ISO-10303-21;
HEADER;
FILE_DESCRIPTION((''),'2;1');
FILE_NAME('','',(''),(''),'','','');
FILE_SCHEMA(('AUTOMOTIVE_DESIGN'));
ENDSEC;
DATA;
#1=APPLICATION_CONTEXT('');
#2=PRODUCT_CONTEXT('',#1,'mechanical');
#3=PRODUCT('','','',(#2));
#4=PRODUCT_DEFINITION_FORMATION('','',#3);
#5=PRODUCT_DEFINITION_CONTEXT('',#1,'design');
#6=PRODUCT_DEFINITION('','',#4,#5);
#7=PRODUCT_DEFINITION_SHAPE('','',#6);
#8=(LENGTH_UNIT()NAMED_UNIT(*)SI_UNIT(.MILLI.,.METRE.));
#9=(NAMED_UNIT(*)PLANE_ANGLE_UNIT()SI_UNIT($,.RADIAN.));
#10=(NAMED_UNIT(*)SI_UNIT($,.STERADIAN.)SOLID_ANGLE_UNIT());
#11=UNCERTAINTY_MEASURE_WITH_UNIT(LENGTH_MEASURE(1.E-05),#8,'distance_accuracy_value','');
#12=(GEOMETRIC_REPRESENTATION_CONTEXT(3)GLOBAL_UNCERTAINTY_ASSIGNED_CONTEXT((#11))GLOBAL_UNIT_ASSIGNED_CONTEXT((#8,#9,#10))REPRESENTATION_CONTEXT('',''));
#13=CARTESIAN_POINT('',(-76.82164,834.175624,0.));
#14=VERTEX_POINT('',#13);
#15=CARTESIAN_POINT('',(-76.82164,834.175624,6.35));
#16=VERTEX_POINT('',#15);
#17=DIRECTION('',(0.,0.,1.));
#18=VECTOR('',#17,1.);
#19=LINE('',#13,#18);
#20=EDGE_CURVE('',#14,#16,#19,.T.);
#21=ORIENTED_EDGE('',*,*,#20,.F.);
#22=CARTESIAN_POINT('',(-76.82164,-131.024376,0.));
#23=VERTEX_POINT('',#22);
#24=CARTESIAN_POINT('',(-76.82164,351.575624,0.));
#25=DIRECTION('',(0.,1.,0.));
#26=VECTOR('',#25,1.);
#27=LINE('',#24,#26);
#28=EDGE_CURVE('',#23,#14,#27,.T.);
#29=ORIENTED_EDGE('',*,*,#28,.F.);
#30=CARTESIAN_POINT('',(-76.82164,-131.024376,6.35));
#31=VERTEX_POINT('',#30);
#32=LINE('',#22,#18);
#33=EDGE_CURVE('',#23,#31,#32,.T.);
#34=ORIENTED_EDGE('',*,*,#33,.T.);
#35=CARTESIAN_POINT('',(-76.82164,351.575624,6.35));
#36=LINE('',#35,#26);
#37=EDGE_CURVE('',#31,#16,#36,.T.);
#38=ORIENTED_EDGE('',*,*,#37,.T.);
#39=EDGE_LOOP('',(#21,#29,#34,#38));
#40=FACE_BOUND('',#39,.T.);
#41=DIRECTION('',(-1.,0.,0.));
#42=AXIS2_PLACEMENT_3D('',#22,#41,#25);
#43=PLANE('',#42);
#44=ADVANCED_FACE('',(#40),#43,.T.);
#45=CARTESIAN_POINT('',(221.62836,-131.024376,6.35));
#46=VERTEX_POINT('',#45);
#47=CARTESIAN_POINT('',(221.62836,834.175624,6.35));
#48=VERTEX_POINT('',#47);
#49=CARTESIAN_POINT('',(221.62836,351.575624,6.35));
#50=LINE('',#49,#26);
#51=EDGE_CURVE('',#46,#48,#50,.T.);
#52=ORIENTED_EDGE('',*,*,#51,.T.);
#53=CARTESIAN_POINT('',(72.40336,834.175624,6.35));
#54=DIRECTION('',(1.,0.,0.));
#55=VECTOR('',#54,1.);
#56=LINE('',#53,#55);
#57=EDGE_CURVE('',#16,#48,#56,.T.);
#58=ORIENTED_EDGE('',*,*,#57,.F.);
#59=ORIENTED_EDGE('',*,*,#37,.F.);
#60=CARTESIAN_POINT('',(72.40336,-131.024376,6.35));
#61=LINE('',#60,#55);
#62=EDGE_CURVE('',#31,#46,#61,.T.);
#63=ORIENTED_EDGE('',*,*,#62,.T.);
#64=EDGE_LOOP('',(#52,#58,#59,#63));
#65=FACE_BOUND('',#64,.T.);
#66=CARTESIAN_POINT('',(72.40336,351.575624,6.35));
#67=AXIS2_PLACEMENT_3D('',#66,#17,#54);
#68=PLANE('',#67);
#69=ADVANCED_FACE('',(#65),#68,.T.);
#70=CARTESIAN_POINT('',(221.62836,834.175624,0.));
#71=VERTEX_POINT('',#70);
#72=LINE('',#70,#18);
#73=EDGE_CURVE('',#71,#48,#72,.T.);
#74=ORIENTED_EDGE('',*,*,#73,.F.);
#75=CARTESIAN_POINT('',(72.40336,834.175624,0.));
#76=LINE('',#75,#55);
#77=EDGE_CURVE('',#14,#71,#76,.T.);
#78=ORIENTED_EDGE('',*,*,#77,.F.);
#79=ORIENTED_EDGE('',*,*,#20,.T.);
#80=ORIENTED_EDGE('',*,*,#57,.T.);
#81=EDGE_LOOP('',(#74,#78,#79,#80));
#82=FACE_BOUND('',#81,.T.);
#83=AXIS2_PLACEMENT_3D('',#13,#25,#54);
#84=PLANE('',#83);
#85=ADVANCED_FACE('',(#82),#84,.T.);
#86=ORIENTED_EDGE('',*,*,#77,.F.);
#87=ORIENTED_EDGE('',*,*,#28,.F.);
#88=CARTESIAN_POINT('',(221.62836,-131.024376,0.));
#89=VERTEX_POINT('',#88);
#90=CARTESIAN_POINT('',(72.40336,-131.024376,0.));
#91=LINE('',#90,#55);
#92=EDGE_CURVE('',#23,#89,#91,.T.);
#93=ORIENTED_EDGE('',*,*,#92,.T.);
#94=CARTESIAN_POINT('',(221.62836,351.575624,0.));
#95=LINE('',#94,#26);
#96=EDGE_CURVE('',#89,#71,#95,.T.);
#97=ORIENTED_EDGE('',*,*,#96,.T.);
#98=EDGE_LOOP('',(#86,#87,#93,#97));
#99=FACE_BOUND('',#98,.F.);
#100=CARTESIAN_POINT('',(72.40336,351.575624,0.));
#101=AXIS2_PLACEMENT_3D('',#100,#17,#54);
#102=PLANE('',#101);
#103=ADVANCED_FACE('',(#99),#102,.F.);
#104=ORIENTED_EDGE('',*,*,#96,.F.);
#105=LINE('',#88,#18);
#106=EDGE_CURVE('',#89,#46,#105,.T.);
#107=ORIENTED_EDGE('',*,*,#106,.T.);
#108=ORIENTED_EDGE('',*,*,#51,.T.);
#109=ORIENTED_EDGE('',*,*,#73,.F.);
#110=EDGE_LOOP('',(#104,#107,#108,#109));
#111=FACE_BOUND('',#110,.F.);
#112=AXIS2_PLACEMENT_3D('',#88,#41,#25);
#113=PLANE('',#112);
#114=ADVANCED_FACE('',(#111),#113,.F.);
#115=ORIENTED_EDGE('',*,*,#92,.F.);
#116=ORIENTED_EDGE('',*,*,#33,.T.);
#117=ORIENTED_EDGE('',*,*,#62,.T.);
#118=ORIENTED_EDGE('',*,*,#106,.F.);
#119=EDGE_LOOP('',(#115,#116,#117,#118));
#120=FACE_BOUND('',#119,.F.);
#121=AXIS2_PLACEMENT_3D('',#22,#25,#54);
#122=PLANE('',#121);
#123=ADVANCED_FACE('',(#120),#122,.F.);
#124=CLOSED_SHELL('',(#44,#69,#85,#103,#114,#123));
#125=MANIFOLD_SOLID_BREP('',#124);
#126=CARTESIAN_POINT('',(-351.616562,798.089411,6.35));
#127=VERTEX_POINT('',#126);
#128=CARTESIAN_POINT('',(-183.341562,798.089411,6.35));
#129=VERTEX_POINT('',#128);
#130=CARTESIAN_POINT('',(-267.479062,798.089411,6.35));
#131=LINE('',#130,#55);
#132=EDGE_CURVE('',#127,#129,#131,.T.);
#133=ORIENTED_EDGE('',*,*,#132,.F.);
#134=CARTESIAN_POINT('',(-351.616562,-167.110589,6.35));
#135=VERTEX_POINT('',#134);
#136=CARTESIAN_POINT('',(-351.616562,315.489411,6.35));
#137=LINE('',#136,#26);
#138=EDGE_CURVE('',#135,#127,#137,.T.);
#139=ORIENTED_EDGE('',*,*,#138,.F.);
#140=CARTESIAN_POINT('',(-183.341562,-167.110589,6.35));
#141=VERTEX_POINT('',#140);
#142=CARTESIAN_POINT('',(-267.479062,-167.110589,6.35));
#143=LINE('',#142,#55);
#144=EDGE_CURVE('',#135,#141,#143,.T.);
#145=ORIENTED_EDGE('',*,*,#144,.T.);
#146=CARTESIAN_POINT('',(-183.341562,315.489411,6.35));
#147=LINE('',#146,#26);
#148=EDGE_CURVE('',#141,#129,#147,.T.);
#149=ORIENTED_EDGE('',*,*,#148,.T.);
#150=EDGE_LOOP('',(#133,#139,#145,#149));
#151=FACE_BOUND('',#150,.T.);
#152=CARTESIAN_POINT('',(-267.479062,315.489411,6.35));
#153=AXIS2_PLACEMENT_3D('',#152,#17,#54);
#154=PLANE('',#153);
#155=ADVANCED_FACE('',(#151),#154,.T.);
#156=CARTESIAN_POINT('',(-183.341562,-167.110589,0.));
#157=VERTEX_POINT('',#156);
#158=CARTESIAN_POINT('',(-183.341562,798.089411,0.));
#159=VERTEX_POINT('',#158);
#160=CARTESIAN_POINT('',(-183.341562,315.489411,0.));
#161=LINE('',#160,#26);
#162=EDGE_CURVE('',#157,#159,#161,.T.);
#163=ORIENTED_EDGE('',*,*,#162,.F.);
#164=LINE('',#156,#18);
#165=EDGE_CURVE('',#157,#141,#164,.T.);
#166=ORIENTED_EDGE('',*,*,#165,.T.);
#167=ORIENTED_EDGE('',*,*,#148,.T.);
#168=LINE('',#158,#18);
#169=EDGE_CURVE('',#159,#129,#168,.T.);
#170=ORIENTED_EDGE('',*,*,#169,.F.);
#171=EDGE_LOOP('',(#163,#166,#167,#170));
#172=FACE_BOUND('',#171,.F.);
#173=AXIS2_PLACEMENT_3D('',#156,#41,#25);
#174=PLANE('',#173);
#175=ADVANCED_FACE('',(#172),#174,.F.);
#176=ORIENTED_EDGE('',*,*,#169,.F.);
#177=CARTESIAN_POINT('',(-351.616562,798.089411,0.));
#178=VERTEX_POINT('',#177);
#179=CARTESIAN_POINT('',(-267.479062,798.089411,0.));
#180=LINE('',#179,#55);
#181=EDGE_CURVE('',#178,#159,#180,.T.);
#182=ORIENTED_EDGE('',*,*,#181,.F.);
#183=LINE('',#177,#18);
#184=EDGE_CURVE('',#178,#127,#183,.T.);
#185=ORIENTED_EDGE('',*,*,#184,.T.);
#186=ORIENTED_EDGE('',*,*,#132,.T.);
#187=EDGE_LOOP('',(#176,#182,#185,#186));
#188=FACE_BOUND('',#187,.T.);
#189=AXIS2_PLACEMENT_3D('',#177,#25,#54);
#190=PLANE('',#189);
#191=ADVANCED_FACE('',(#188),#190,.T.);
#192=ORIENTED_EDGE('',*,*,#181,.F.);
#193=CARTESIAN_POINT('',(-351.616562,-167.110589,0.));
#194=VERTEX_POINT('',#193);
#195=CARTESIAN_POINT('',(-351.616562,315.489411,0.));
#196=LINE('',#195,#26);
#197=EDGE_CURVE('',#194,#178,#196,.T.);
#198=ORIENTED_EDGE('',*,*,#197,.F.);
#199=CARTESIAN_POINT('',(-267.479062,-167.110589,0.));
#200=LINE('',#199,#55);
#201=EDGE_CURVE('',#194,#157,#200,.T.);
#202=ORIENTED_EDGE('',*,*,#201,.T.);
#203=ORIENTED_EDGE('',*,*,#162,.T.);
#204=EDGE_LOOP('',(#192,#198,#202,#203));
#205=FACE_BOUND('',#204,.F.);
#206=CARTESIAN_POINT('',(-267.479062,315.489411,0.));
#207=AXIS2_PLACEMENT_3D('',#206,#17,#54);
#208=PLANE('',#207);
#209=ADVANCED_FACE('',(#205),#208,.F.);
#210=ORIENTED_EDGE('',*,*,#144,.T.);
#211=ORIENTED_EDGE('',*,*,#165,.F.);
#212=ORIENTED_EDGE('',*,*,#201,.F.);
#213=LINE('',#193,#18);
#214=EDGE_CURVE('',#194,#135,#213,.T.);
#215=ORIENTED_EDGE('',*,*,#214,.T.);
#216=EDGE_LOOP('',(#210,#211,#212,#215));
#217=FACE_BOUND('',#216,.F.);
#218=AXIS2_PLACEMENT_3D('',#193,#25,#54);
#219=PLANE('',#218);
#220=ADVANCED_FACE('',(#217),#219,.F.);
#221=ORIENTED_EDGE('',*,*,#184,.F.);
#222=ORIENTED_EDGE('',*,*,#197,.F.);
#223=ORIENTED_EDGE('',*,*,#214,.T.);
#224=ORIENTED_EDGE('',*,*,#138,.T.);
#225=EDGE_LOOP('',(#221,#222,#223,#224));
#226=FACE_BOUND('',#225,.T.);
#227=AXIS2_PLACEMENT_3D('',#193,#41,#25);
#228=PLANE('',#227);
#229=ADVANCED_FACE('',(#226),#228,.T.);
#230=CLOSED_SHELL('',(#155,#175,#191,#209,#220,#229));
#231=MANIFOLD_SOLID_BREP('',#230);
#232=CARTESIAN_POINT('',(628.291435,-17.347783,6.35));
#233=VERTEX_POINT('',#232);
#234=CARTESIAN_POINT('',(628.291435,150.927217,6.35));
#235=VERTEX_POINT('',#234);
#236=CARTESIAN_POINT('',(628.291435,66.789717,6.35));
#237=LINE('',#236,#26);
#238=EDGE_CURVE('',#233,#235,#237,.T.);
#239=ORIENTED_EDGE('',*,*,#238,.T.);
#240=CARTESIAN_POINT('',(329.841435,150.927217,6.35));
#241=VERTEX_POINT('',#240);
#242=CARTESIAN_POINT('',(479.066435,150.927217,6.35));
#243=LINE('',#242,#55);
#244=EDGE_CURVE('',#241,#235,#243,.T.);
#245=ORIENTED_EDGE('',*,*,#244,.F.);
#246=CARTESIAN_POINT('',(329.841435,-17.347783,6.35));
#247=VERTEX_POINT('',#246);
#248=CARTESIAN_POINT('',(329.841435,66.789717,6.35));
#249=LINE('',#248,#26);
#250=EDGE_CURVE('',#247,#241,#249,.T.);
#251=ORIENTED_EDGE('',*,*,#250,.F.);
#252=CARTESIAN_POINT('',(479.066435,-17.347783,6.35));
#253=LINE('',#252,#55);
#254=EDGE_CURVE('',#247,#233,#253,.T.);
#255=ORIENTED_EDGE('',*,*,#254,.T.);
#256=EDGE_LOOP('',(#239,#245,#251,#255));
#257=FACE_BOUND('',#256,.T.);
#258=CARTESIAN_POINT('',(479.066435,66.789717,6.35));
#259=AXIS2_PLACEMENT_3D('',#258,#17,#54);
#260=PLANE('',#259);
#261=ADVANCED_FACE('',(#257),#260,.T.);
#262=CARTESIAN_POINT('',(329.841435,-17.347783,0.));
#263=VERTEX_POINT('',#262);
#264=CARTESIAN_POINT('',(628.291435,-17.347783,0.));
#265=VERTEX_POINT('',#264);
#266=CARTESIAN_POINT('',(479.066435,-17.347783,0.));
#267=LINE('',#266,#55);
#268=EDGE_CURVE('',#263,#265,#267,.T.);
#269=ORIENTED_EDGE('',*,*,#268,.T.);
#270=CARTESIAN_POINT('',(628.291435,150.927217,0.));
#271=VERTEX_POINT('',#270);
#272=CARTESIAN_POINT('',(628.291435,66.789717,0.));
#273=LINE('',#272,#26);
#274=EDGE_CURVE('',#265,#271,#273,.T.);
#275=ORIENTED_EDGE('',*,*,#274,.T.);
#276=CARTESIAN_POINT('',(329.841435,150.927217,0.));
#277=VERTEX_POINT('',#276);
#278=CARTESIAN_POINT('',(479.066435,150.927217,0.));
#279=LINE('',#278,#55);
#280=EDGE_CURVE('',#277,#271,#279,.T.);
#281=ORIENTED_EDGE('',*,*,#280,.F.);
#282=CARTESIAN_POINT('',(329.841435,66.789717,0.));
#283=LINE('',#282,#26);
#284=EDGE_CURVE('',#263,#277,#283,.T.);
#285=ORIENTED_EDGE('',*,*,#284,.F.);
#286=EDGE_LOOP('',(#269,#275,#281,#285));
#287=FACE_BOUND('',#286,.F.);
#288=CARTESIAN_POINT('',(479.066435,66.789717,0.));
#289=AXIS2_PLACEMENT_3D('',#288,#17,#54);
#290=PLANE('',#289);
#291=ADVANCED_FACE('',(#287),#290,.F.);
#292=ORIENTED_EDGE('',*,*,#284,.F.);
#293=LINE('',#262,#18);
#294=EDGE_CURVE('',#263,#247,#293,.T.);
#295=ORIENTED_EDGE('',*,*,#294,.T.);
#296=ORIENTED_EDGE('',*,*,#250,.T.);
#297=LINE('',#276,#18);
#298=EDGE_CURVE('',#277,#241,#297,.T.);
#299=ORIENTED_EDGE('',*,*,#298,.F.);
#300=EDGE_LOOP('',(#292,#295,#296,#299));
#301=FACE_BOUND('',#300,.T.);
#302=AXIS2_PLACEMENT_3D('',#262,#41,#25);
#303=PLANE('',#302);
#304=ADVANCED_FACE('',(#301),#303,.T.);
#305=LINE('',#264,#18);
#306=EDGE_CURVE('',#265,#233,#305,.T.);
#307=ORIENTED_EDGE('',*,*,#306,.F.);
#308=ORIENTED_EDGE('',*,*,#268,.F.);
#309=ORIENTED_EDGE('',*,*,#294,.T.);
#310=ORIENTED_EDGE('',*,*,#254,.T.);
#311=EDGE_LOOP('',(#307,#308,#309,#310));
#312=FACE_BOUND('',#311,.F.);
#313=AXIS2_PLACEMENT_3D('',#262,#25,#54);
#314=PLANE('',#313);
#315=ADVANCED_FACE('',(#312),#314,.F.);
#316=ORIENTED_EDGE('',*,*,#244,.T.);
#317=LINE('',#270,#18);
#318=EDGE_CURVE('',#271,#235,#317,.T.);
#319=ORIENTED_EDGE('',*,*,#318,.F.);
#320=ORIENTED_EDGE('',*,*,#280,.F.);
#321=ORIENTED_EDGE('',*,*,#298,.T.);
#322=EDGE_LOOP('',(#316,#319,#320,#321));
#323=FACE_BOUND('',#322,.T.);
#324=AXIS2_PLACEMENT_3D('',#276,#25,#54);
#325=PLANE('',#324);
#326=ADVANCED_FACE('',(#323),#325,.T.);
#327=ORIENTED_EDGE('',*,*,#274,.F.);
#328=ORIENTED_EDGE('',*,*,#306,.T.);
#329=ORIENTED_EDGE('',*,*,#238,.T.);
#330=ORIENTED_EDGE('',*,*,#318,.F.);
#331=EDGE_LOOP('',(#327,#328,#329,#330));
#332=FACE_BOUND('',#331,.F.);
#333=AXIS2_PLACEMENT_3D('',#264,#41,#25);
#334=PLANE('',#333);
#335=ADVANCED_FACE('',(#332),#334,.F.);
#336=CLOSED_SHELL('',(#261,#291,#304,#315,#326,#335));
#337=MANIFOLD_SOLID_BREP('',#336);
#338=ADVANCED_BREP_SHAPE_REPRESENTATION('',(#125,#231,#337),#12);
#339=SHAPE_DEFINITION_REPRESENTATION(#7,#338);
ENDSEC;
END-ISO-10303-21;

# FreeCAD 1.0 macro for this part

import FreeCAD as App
import Part
import Sketcher
from FreeCAD import Vector
Q = App.Units.Quantity


def add_polygon(sketch, points):
    """Adds a closed chain of lines whose ends are joined by coincident constraints."""
    first, n = sketch.GeometryCount, len(points)
    for a, b in zip(points, points[1:] + points[:1]):
        sketch.addGeometry(Part.LineSegment(App.Vector(*a, 0), App.Vector(*b, 0)), False)
    for i in range(n):
        sketch.addConstraint(Sketcher.Constraint("Coincident", first + i, 2, first + (i + 1) % n, 1))

doc = App.newDocument("Part")
body = doc.addObject("PartDesign::Body", "Body")
body.AllowCompound = True

sketch1 = body.newObject("Sketcher::SketchObject", "Sketch")
sketch1.AttachmentSupport = (doc.getObject("XY_Plane"), [""])
sketch1.MapMode = "FlatFace"
add_polygon(sketch1, [(-352, 798), (-352, -167), (-183, -167), (-183, 798)])
add_polygon(sketch1, [(-77, 834), (-77, -131), (222, -131), (222, 834)])
add_polygon(sketch1, [(330, 151), (330, -17), (628, -17), (628, 151)])
sketch1.addConstraint([
    Sketcher.Constraint("Vertical", 0),
    Sketcher.Constraint("Horizontal", 1),
    Sketcher.Constraint("Vertical", 2),
    Sketcher.Constraint("Horizontal", 3),
    Sketcher.Constraint("Vertical", 4),
    Sketcher.Constraint("Horizontal", 5),
    Sketcher.Constraint("Vertical", 6),
    Sketcher.Constraint("Horizontal", 7),
    Sketcher.Constraint("Vertical", 8),
    Sketcher.Constraint("Horizontal", 9),
    Sketcher.Constraint("Vertical", 10),
    Sketcher.Constraint("Horizontal", 11),
    Sketcher.Constraint("Equal", 7, 9),
    Sketcher.Constraint("Equal", 2, 4),
    Sketcher.Constraint("Equal", 3, 8),
    Sketcher.Constraint("DistanceY", 0, 2, 0, 1, Q("38 in")),
    Sketcher.Constraint("DistanceX", 5, 1, 5, 2, Q("11.75 in")),
    Sketcher.Constraint("DistanceX", 1, 1, 1, 2, Q("6.625 in")),
    Sketcher.Constraint("DistanceX", 0, 2, -1, 1, Q("351.616562 mm")),
    Sketcher.Constraint("DistanceY", 0, 2, -1, 1, Q("167.110589 mm")),
    Sketcher.Constraint("DistanceX", 4, 2, -1, 1, Q("76.82164 mm")),
    Sketcher.Constraint("DistanceY", 4, 2, -1, 1, Q("131.024376 mm")),
    Sketcher.Constraint("DistanceX", -1, 1, 8, 2, Q("329.841435 mm")),
    Sketcher.Constraint("DistanceY", 8, 2, -1, 1, Q("17.347783 mm")),
])
pad1 = body.newObject("PartDesign::Pad", "Pad")
pad1.Profile = sketch1
pad1.Length = Q("0.25 in")

doc.recompute()
